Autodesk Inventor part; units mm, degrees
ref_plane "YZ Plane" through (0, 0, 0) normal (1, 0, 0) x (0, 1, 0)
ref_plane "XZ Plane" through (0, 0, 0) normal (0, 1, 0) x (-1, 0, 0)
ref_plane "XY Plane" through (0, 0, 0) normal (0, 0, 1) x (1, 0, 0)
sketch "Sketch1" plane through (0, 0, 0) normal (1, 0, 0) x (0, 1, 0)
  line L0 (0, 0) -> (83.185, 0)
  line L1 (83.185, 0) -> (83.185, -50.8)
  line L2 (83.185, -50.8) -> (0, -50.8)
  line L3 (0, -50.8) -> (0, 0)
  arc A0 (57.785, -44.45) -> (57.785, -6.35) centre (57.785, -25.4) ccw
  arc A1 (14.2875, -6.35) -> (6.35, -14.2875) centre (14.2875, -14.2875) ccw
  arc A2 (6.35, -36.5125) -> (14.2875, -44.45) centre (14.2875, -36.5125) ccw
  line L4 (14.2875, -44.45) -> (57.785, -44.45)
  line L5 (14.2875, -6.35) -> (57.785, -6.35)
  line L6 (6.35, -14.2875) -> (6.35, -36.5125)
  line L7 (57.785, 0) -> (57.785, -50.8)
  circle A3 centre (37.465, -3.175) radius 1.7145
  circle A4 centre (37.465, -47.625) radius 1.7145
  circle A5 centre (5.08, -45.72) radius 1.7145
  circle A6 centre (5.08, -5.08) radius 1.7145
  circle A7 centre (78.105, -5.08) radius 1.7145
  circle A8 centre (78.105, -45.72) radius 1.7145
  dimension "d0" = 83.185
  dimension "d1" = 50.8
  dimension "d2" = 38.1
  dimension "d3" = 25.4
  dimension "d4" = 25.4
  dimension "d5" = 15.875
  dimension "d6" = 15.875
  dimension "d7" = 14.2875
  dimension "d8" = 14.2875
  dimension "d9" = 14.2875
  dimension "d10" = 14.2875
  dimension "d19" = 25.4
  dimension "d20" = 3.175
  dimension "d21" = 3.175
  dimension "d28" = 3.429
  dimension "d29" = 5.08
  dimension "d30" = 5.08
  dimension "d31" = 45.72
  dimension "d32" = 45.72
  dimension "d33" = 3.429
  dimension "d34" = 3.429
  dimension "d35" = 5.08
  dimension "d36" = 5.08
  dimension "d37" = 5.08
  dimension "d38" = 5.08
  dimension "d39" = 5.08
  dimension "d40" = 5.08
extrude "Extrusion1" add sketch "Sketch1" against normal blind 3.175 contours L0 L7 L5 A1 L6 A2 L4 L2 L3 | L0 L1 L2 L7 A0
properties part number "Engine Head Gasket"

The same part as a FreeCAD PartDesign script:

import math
import FreeCAD as App
import Part
import Sketcher

V = App.Vector
Q = App.Units.Quantity


def add_polygon(sketch, points):
    """Adds a closed chain of lines whose ends are joined by coincident constraints."""
    first, n = sketch.GeometryCount, len(points)
    for a, b in zip(points, points[1:] + points[:1]):
        sketch.addGeometry(Part.LineSegment(App.Vector(*a, 0), App.Vector(*b, 0)), False)
    for i in range(n):
        sketch.addConstraint(Sketcher.Constraint("Coincident", first + i, 2, first + (i + 1) % n, 1))

doc = App.newDocument("Part")
body = doc.addObject("PartDesign::Body", "Body")

# Sketch on YZ plane
sketch1 = body.newObject("Sketcher::SketchObject", "Sketch")
sketch1.AttachmentSupport = (doc.getObject("YZ_Plane"), [""])
sketch1.MapMode = "FlatFace"
add_polygon(sketch1, [(0, 0), (0, -50.8), (83.185, -50.8), (83.185, 0)])  # lines 0-3
sketch1.addGeometry(Part.LineSegment(V(14.2875, -6.35, 0), V(57.785, -6.35, 0)), False)  # 4
sketch1.addGeometry(Part.ArcOfCircle(Part.Circle(V(57.785, -25.4, 0), V(0, 0, 1), 19.05), math.radians(-90), math.radians(90)), False)  # 5
sketch1.addGeometry(Part.LineSegment(V(57.785, -44.45, 0), V(14.2875, -44.45, 0)), False)  # 6
sketch1.addGeometry(Part.ArcOfCircle(Part.Circle(V(14.2875, -36.5125, 0), V(0, 0, 1), 7.9375), math.radians(180), math.radians(270)), False)  # 7
sketch1.addGeometry(Part.LineSegment(V(6.35, -36.5125, 0), V(6.35, -14.2875, 0)), False)  # 8
sketch1.addGeometry(Part.ArcOfCircle(Part.Circle(V(14.2875, -14.2875, 0), V(0, 0, 1), 7.9375), math.radians(90), math.radians(180)), False)  # 9
sketch1.addGeometry(Part.Circle(V(5.08, -45.72, 0), V(0, 0, 1), 1.7145), False)  # 10
sketch1.addGeometry(Part.Circle(V(37.465, -47.625, 0), V(0, 0, 1), 1.7145), False)  # 11
sketch1.addGeometry(Part.Circle(V(5.08, -5.08, 0), V(0, 0, 1), 1.7145), False)  # 12
sketch1.addGeometry(Part.Circle(V(37.465, -3.175, 0), V(0, 0, 1), 1.7145), False)  # 13
sketch1.addGeometry(Part.Circle(V(78.105, -45.72, 0), V(0, 0, 1), 1.7145), False)  # 14
sketch1.addGeometry(Part.Circle(V(78.105, -5.08, 0), V(0, 0, 1), 1.7145), False)  # 15
sketch1.addConstraint(Sketcher.Constraint("Tangent", 4, 2, 5, 2))
sketch1.addConstraint(Sketcher.Constraint("Tangent", 5, 1, 6, 1))
sketch1.addConstraint(Sketcher.Constraint("Tangent", 6, 2, 7, 2))
sketch1.addConstraint(Sketcher.Constraint("Tangent", 7, 1, 8, 1))
sketch1.addConstraint(Sketcher.Constraint("Tangent", 8, 2, 9, 2))
sketch1.addConstraint(Sketcher.Constraint("Tangent", 9, 1, 4, 1))
sketch1.addConstraint(Sketcher.Constraint("Vertical", 0))
sketch1.addConstraint(Sketcher.Constraint("Horizontal", 1))
sketch1.addConstraint(Sketcher.Constraint("Vertical", 2))
sketch1.addConstraint(Sketcher.Constraint("Horizontal", 3))
sketch1.addConstraint(Sketcher.Constraint("Horizontal", 4))
sketch1.addConstraint(Sketcher.Constraint("Horizontal", 6))
sketch1.addConstraint(Sketcher.Constraint("Vertical", 8))
sketch1.addConstraint(Sketcher.Constraint("Coincident", 3, 2, -1, 1))
sketch1.addConstraint(Sketcher.Constraint("Equal", 7, 9))
sketch1.addConstraint(Sketcher.Constraint("Equal", 10, 11))
sketch1.addConstraint(Sketcher.Constraint("Equal", 11, 12))
sketch1.addConstraint(Sketcher.Constraint("Equal", 12, 13))
sketch1.addConstraint(Sketcher.Constraint("Equal", 13, 14))
sketch1.addConstraint(Sketcher.Constraint("Equal", 14, 15))
sketch1.addConstraint(Sketcher.Constraint("Horizontal", 10, 3, 14, 3))
sketch1.addConstraint(Sketcher.Constraint("Horizontal", 12, 3, 15, 3))
sketch1.addConstraint(Sketcher.Constraint("Vertical", 10, 3, 12, 3))
sketch1.addConstraint(Sketcher.Constraint("Vertical", 11, 3, 13, 3))
sketch1.addConstraint(Sketcher.Constraint("Vertical", 14, 3, 15, 3))
sketch1.addConstraint(Sketcher.Constraint("DistanceY", 0, 2, 0, 1, Q("2 in")))
sketch1.addConstraint(Sketcher.Constraint("Radius", 5, Q("0.75 in")))
sketch1.addConstraint(Sketcher.Constraint("Diameter", 10, Q("0.135 in")))
sketch1.addConstraint(Sketcher.Constraint("DistanceY", 5, 3, -1, 1, Q("1 in")))
sketch1.addConstraint(Sketcher.Constraint("Radius", 7, Q("0.3125 in")))
sketch1.addConstraint(Sketcher.Constraint("DistanceX", 5, 3, 1, 2, Q("1 in")))
sketch1.addConstraint(Sketcher.Constraint("DistanceX", -1, 1, 10, 3, Q("0.2 in")))
sketch1.addConstraint(Sketcher.Constraint("DistanceY", 10, 3, -1, 1, Q("1.8 in")))
sketch1.addConstraint(Sketcher.Constraint("DistanceY", 12, 3, -1, 1, Q("0.2 in")))
sketch1.addConstraint(Sketcher.Constraint("DistanceX", 14, 3, 1, 2, Q("0.2 in")))
sketch1.addConstraint(Sketcher.Constraint("DistanceX", 11, 3, 1, 2, Q("1.8 in")))
sketch1.addConstraint(Sketcher.Constraint("DistanceX", 1, 1, 1, 2, Q("3.275 in")))
sketch1.addConstraint(Sketcher.Constraint("DistanceX", -1, 1, 7, 3, Q("0.5625 in")))
sketch1.addConstraint(Sketcher.Constraint("DistanceY", 13, 3, -1, 1, Q("0.125 in")))
sketch1.addConstraint(Sketcher.Constraint("DistanceY", 0, 2, 11, 3, Q("0.125 in")))
pad1 = body.newObject("PartDesign::Pad", "Pad")
pad1.Profile = sketch1
pad1.Length = Q("0.125 in")
pad1.Reversed = True

doc.recompute()
